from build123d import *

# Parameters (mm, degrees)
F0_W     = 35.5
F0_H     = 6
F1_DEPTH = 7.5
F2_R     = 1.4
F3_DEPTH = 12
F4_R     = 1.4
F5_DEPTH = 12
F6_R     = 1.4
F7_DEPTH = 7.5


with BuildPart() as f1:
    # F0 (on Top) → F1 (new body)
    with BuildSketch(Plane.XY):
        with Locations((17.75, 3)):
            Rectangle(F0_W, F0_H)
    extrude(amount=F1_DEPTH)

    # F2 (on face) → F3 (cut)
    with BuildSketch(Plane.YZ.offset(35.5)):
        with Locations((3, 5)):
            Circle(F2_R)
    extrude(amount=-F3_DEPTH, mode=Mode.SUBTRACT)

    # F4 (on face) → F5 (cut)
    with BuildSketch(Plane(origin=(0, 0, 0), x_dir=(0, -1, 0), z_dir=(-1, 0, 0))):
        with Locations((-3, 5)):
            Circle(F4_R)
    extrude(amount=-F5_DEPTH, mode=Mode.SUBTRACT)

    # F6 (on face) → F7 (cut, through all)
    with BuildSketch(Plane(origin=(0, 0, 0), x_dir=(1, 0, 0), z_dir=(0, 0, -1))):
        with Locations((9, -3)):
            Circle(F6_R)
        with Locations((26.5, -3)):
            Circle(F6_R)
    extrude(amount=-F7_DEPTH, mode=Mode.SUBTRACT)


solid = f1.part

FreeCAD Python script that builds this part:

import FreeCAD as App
import Part
import Sketcher

V = App.Vector
Q = App.Units.Quantity

doc = App.newDocument("Part")
body = doc.addObject("PartDesign::Body", "Body")

# Sketch on XY plane
sketch1 = doc.addObject("Sketcher::SketchObject", "Sketch")
body.addObject(sketch1)
sketch1.AttachmentSupport = (doc.XY_Plane, [""])
sketch1.MapMode = "FlatFace"
sketch1.addGeometry([
    Part.LineSegment(V(0, 6, 0), V(0, 0, 0)),
    Part.LineSegment(V(0, 0, 0), V(35.5, 0, 0)),
    Part.LineSegment(V(35.5, 0, 0), V(35.5, 6, 0)),
    Part.LineSegment(V(35.5, 6, 0), V(0, 6, 0)),
], False)
sketch1.addConstraint([
    Sketcher.Constraint("Coincident", 0, 2, 1, 1),
    Sketcher.Constraint("Coincident", 1, 2, 2, 1),
    Sketcher.Constraint("Coincident", 2, 2, 3, 1),
    Sketcher.Constraint("Coincident", 3, 2, 0, 1),
    Sketcher.Constraint("Vertical", 0),
    Sketcher.Constraint("Horizontal", 1),
    Sketcher.Constraint("Vertical", 2),
    Sketcher.Constraint("Horizontal", 3),
    Sketcher.Constraint("Coincident", 0, 2, -1, 1),
    Sketcher.Constraint("DistanceY", 0, 2, 0, 1, Q("6 mm")),
    Sketcher.Constraint("DistanceX", 1, 1, 1, 2, Q("35.5 mm")),
])
pad1 = doc.addObject("PartDesign::Pad", "Pad")
body.addObject(pad1)
pad1.Profile = sketch1
pad1.Length = 7.5

# Sketch on YZ plane
sketch2 = doc.addObject("Sketcher::SketchObject", "Sketch001")
body.addObject(sketch2)
sketch2.AttachmentSupport = (doc.YZ_Plane, [""])
sketch2.MapMode = "FlatFace"
sketch2.AttachmentOffset = App.Placement(V(0, 0, 35.5), App.Rotation())
sketch2.addGeometry(Part.Circle(V(3, 5, 0), V(0, 0, 1), 1.4), False)
sketch2.addConstraint([
    Sketcher.Constraint("Diameter", 0, Q("2.8 mm")),
    Sketcher.Constraint("DistanceX", -1, 1, 0, 3, Q("3 mm")),
    Sketcher.Constraint("DistanceY", -1, 1, 0, 3, Q("5 mm")),
])
pocket1 = doc.addObject("PartDesign::Pocket", "Pocket")
body.addObject(pocket1)
pocket1.Profile = sketch2
pocket1.Length = 12

# Sketch on YZ plane
sketch3 = doc.addObject("Sketcher::SketchObject", "Sketch002")
body.addObject(sketch3)
sketch3.AttachmentSupport = (doc.YZ_Plane, [""])
sketch3.MapMode = "FlatFace"
sketch3.addGeometry(Part.Circle(V(3, 5, 0), V(0, 0, 1), 1.4), False)
sketch3.addConstraint([
    Sketcher.Constraint("Diameter", 0, Q("2.8 mm")),
    Sketcher.Constraint("DistanceX", -1, 1, 0, 3, Q("3 mm")),
    Sketcher.Constraint("DistanceY", -1, 1, 0, 3, Q("5 mm")),
])
pocket2 = doc.addObject("PartDesign::Pocket", "Pocket001")
body.addObject(pocket2)
pocket2.Profile = sketch3
pocket2.Length = 12
pocket2.Reversed = True

# Sketch on XY plane
sketch4 = doc.addObject("Sketcher::SketchObject", "Sketch003")
body.addObject(sketch4)
sketch4.AttachmentSupport = (doc.XY_Plane, [""])
sketch4.MapMode = "FlatFace"
sketch4.addGeometry([
    Part.Circle(V(9, 3, 0), V(0, 0, 1), 1.4),
    Part.Circle(V(26.5, 3, 0), V(0, 0, 1), 1.4),
], False)
sketch4.addConstraint([
    Sketcher.Constraint("Equal", 0, 1),
    Sketcher.Constraint("Horizontal", 0, 3, 1, 3),
    Sketcher.Constraint("Diameter", 0, Q("2.8 mm")),
    Sketcher.Constraint("DistanceX", -1, 1, 0, 3, Q("9 mm")),
    Sketcher.Constraint("DistanceY", -1, 1, 0, 3, Q("3 mm")),
    Sketcher.Constraint("DistanceX", -1, 1, 1, 3, Q("26.5 mm")),
])
pocket3 = doc.addObject("PartDesign::Pocket", "Pocket002")
body.addObject(pocket3)
pocket3.Profile = sketch4
pocket3.Type = "ThroughAll"
pocket3.Reversed = True

doc.recompute()
